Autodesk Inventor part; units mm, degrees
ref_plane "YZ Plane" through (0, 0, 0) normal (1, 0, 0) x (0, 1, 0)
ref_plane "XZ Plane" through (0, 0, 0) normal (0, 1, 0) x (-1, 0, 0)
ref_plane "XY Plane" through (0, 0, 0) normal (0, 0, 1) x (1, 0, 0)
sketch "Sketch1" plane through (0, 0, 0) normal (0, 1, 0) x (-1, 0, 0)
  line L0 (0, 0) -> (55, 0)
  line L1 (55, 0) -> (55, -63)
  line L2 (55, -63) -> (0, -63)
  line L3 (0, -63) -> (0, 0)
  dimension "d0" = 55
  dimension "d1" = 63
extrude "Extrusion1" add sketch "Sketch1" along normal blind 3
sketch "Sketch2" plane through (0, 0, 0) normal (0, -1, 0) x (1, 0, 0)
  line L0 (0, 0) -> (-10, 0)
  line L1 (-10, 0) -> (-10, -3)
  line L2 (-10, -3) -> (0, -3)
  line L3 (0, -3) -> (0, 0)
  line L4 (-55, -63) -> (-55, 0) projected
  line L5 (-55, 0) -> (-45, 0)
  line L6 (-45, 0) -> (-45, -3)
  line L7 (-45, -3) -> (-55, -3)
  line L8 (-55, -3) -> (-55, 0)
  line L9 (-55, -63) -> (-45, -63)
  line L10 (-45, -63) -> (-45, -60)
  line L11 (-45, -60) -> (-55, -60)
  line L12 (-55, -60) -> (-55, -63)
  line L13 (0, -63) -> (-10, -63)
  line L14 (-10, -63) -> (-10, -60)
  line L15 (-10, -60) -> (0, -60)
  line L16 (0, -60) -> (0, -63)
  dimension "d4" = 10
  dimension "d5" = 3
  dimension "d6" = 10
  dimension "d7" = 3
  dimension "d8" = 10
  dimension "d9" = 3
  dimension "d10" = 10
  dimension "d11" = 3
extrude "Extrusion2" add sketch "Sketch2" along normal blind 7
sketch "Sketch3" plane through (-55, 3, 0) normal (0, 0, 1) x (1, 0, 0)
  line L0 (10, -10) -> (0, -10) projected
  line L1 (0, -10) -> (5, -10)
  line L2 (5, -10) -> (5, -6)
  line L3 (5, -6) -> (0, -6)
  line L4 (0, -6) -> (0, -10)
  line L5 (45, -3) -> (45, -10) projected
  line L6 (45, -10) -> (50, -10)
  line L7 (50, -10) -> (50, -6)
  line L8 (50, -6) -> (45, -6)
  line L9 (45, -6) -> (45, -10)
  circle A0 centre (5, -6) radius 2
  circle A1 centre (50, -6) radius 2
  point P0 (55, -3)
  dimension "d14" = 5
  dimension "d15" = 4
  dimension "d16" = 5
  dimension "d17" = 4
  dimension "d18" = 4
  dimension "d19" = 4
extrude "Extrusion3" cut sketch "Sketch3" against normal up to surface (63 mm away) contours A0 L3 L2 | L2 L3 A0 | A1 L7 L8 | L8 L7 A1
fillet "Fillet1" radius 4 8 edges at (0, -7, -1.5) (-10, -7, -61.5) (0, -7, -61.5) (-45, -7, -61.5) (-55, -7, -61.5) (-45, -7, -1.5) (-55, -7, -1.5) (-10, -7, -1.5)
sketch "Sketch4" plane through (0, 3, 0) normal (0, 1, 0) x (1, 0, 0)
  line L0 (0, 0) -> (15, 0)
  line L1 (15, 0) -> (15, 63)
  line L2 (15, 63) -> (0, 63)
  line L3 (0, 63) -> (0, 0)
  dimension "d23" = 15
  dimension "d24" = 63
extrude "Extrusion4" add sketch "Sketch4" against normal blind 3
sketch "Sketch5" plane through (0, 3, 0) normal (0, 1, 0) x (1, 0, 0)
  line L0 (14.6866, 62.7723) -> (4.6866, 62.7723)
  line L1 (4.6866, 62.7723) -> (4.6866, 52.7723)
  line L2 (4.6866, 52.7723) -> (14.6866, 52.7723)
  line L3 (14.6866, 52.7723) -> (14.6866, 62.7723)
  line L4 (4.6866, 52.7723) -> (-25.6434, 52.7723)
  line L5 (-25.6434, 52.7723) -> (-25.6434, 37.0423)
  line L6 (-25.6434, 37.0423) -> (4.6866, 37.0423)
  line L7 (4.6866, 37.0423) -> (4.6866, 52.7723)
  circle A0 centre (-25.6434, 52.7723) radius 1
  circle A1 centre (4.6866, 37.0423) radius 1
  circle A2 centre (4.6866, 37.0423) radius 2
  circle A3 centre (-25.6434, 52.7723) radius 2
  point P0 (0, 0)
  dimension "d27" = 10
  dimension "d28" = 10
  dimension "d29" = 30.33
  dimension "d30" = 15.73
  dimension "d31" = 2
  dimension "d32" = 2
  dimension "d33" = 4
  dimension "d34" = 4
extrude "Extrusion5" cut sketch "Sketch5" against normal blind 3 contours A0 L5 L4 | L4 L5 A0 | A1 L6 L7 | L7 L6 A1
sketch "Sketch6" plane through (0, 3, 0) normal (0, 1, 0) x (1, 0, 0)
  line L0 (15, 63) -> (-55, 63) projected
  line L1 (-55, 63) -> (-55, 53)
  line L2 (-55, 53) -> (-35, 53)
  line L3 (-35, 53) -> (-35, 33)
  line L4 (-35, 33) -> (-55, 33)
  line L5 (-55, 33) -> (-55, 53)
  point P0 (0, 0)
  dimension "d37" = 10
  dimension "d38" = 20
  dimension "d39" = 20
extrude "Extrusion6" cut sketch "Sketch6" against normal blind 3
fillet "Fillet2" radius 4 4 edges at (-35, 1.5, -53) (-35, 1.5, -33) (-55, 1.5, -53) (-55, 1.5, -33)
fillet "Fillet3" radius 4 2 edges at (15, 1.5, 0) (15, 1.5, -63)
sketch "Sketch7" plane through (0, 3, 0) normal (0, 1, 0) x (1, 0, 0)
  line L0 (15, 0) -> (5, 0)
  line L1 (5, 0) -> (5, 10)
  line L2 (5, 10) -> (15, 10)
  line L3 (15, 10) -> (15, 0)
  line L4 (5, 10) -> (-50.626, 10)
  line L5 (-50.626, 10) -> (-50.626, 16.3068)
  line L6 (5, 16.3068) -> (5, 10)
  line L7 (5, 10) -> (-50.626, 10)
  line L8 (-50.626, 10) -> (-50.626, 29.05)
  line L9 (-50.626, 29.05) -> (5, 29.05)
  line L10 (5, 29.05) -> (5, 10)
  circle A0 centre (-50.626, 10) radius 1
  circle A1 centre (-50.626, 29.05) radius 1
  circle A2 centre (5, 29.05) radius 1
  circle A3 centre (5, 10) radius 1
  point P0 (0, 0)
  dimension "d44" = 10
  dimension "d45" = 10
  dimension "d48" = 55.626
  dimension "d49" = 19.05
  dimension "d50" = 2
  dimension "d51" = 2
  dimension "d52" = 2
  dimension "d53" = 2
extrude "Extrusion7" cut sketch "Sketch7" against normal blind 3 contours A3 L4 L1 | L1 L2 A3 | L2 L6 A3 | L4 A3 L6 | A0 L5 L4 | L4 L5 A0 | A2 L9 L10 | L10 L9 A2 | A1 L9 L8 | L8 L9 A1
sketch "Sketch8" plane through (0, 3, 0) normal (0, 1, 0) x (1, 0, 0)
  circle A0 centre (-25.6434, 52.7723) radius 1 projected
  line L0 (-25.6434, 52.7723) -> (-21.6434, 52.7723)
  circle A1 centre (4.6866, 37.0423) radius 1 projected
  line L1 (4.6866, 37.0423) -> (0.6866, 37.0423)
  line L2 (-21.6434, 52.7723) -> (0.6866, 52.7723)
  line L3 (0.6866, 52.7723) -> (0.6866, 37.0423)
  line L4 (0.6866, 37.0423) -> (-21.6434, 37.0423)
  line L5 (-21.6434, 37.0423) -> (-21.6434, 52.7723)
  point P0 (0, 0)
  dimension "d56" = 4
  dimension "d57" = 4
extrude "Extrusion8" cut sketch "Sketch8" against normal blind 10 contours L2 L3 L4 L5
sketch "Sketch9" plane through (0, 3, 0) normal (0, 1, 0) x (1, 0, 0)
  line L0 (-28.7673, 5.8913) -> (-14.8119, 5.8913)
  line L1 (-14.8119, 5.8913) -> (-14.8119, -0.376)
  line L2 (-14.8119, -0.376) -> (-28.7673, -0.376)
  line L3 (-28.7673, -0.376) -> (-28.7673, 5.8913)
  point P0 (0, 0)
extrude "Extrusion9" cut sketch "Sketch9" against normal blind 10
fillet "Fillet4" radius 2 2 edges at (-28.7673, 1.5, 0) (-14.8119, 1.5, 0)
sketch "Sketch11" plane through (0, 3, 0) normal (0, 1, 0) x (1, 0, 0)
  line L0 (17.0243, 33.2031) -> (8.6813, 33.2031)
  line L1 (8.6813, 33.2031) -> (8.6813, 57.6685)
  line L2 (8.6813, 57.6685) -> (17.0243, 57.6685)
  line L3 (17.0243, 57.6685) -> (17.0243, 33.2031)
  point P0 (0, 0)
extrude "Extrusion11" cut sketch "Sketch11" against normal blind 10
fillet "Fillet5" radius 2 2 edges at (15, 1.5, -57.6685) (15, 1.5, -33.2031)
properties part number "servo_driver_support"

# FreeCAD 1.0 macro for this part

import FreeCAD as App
import Part
import Sketcher


def edges_at(feature, points):
    """Names of the edges that pass closest to the given points."""
    edges = feature.Shape.Edges
    near = lambda p: min(range(len(edges)), key=lambda i: edges[i].distToShape(Part.Vertex(*p))[0])
    return sorted({f"Edge{near(p) + 1}" for p in points})


def add_polygon(sketch, points):
    """Adds a closed chain of lines whose ends are joined by coincident constraints."""
    first, n = sketch.GeometryCount, len(points)
    for a, b in zip(points, points[1:] + points[:1]):
        sketch.addGeometry(Part.LineSegment(App.Vector(*a, 0), App.Vector(*b, 0)), False)
    for i in range(n):
        sketch.addConstraint(Sketcher.Constraint("Coincident", first + i, 2, first + (i + 1) % n, 1))

doc = App.newDocument("Part")
body = doc.addObject("PartDesign::Body", "Body")

sketch1 = doc.addObject("Sketcher::SketchObject", "Sketch")
body.addObject(sketch1)
sketch1.AttachmentSupport = (doc.XZ_Plane, [""])
sketch1.MapMode = "FlatFace"
add_polygon(sketch1, [(-55, 0), (0, 0), (0, -63), (-55, -63)])
sketch1.addConstraint([
    Sketcher.Constraint("Horizontal", 0),
    Sketcher.Constraint("Vertical", 1),
    Sketcher.Constraint("Horizontal", 2),
    Sketcher.Constraint("Vertical", 3),
    Sketcher.Constraint("Coincident", 0, 2, -1, 1),
    Sketcher.Constraint("DistanceX", 0, 1, 0, 2, 55.0),
    Sketcher.Constraint("DistanceY", 1, 2, 1, 1, 63.0),
])
pad1 = doc.addObject("PartDesign::Pad", "Pad")
body.addObject(pad1)
pad1.Profile = sketch1
pad1.Length = 3
pad1.Reversed = True

sketch2 = doc.addObject("Sketcher::SketchObject", "Sketch001")
body.addObject(sketch2)
sketch2.AttachmentSupport = (doc.XZ_Plane, [""])
sketch2.MapMode = "FlatFace"
add_polygon(sketch2, [(0, -3), (0, 0), (-10, 0), (-10, -3)])
add_polygon(sketch2, [(-55, 0), (-55, -3), (-45, -3), (-45, 0)])
add_polygon(sketch2, [(-55, -60), (-55, -63), (-45, -63), (-45, -60)])
add_polygon(sketch2, [(-10, -63), (0, -63), (0, -60), (-10, -60)])
sketch2.addConstraint([
    Sketcher.Constraint("Vertical", 0),
    Sketcher.Constraint("Horizontal", 1),
    Sketcher.Constraint("Vertical", 2),
    Sketcher.Constraint("Horizontal", 3),
    Sketcher.Constraint("Vertical", 4),
    Sketcher.Constraint("Horizontal", 5),
    Sketcher.Constraint("Vertical", 6),
    Sketcher.Constraint("Horizontal", 7),
    Sketcher.Constraint("Vertical", 8),
    Sketcher.Constraint("Horizontal", 9),
    Sketcher.Constraint("Vertical", 10),
    Sketcher.Constraint("Horizontal", 11),
    Sketcher.Constraint("Horizontal", 12),
    Sketcher.Constraint("Vertical", 13),
    Sketcher.Constraint("Horizontal", 14),
    Sketcher.Constraint("Vertical", 15),
    Sketcher.Constraint("Coincident", 0, 2, -1, 1),
    Sketcher.Constraint("PointOnObject", 6, 2, -1),
    Sketcher.Constraint("PointOnObject", 12, 2, -2),
    Sketcher.Constraint("Horizontal", 3, 2, 4, 2),
    Sketcher.Constraint("Horizontal", 9, 2, 12, 2),
    Sketcher.Constraint("Horizontal", 11, 2, 13, 2),
    Sketcher.Constraint("Vertical", 7, 2, 8, 2),
    Sketcher.Constraint("Vertical", 6, 2, 9, 2),
    Sketcher.Constraint("Vertical", 2, 2, 14, 2),
    Sketcher.Constraint("Equal", 3, 5),
    Sketcher.Constraint("Equal", 6, 8),
    Sketcher.Constraint("DistanceX", 1, 2, 1, 1, 10.0),
    Sketcher.Constraint("DistanceY", 0, 1, 0, 2, 3.0),
    Sketcher.Constraint("DistanceX", 4, 2, -1, 1, 55.0),
    Sketcher.Constraint("DistanceY", 8, 2, -1, 1, 63.0),
])
pad2 = doc.addObject("PartDesign::Pad", "Pad001")
body.addObject(pad2)
pad2.Profile = sketch2
pad2.Length = 7

sketch3 = doc.addObject("Sketcher::SketchObject", "Sketch002")
body.addObject(sketch3)
sketch3.AttachmentSupport = (doc.XY_Plane, [""])
sketch3.MapMode = "FlatFace"
sketch3.addGeometry([
    Part.Circle(App.Vector(-50, -3, 0), App.Vector(0, 0, 1), 2),
    Part.Circle(App.Vector(-5, -3, 0), App.Vector(0, 0, 1), 2),
], False)
sketch3.addConstraint([
    Sketcher.Constraint("Equal", 0, 1),
    Sketcher.Constraint("Horizontal", 0, 3, 1, 3),
    Sketcher.Constraint("Diameter", 0, 4.0),
    Sketcher.Constraint("DistanceX", 1, 3, -1, 1, 5.0),
    Sketcher.Constraint("DistanceX", 0, 3, -1, 1, 50.0),
    Sketcher.Constraint("DistanceY", 0, 3, -1, 1, 3.0),
])
pocket1 = doc.addObject("PartDesign::Pocket", "Pocket")
body.addObject(pocket1)
pocket1.Profile = sketch3
pocket1.Length = 63
doc.recompute()

fillet = doc.addObject("PartDesign::Fillet", "Fillet")
body.addObject(fillet)
fillet.Base = (pocket1, edges_at(pocket1, [
    (0, -7, -1.5),
    (-10, -7, -61.5),
    (0, -7, -61.5),
    (-45, -7, -61.5),
    (-55, -7, -61.5),
    (-45, -7, -1.5),
    (-55, -7, -1.5),
    (-10, -7, -1.5),
]))
fillet.Radius = 4

sketch4 = doc.addObject("Sketcher::SketchObject", "Sketch003")
body.addObject(sketch4)
sketch4.AttachmentSupport = (doc.XZ_Plane, [""])
sketch4.MapMode = "FlatFace"
sketch4.AttachmentOffset = App.Placement(App.Vector(0, 0, -3), App.Rotation())
add_polygon(sketch4, [(0, -63), (0, 0), (15, 0), (15, -63)])
sketch4.addConstraint([
    Sketcher.Constraint("Vertical", 0),
    Sketcher.Constraint("Horizontal", 1),
    Sketcher.Constraint("Vertical", 2),
    Sketcher.Constraint("Horizontal", 3),
    Sketcher.Constraint("Coincident", 0, 2, -1, 1),
    Sketcher.Constraint("DistanceX", 1, 1, 1, 2, 15.0),
    Sketcher.Constraint("DistanceY", 0, 1, 0, 2, 63.0),
])
pad3 = doc.addObject("PartDesign::Pad", "Pad002")
body.addObject(pad3)
pad3.Profile = sketch4
pad3.Length = 3

sketch5 = doc.addObject("Sketcher::SketchObject", "Sketch004")
body.addObject(sketch5)
sketch5.AttachmentSupport = (doc.XZ_Plane, [""])
sketch5.MapMode = "FlatFace"
sketch5.AttachmentOffset = App.Placement(App.Vector(0, 0, -3), App.Rotation())
sketch5.addGeometry([
    Part.Circle(App.Vector(-25.6, -52.8, 0), App.Vector(0, 0, 1), 1),
    Part.Circle(App.Vector(4.7, -37, 0), App.Vector(0, 0, 1), 1),
], False)
sketch5.addConstraint([
    Sketcher.Constraint("Equal", 0, 1),
    Sketcher.Constraint("Diameter", 0, 2.0),
    Sketcher.Constraint("DistanceX", 0, 3, 1, 3, 30.33),
    Sketcher.Constraint("DistanceY", 0, 3, 1, 3, 15.73),
    Sketcher.Constraint("DistanceX", 0, 3, -1, 1, 25.6434),
    Sketcher.Constraint("DistanceY", 0, 3, -1, 1, 52.7723),
])
pocket2 = doc.addObject("PartDesign::Pocket", "Pocket001")
body.addObject(pocket2)
pocket2.Profile = sketch5
pocket2.Length = 3
pocket2.Reversed = True

sketch6 = doc.addObject("Sketcher::SketchObject", "Sketch005")
body.addObject(sketch6)
sketch6.AttachmentSupport = (doc.XZ_Plane, [""])
sketch6.MapMode = "FlatFace"
sketch6.AttachmentOffset = App.Placement(App.Vector(0, 0, -3), App.Rotation())
add_polygon(sketch6, [(-35, -53), (-55, -53), (-55, -33), (-35, -33)])
sketch6.addConstraint([
    Sketcher.Constraint("Horizontal", 0),
    Sketcher.Constraint("Vertical", 1),
    Sketcher.Constraint("Horizontal", 2),
    Sketcher.Constraint("Vertical", 3),
    Sketcher.Constraint("Equal", 2, 1),
    Sketcher.Constraint("DistanceX", 0, 2, 0, 1, 20.0),
    Sketcher.Constraint("DistanceX", 0, 2, -1, 1, 55.0),
    Sketcher.Constraint("DistanceY", 0, 2, -1, 1, 53.0),
])
pocket3 = doc.addObject("PartDesign::Pocket", "Pocket002")
body.addObject(pocket3)
pocket3.Profile = sketch6
pocket3.Length = 3
pocket3.Reversed = True
doc.recompute()

fillet2 = doc.addObject("PartDesign::Fillet", "Fillet001")
body.addObject(fillet2)
fillet2.Base = (pocket3, edges_at(pocket3, [
    (-35, 1.5, -53),
    (-35, 1.5, -33),
    (-55, 1.5, -53),
    (-55, 1.5, -33),
]))
fillet2.Radius = 4
doc.recompute()

fillet3 = doc.addObject("PartDesign::Fillet", "Fillet002")
body.addObject(fillet3)
fillet3.Base = (fillet2, edges_at(fillet2, [(15, 1.5, 0), (15, 1.5, -63)]))
fillet3.Radius = 4

sketch7 = doc.addObject("Sketcher::SketchObject", "Sketch006")
body.addObject(sketch7)
sketch7.AttachmentSupport = (doc.XZ_Plane, [""])
sketch7.MapMode = "FlatFace"
sketch7.AttachmentOffset = App.Placement(App.Vector(0, 0, -3), App.Rotation())
sketch7.addGeometry([
    Part.Circle(App.Vector(5, -10, 0), App.Vector(0, 0, 1), 1),
    Part.Circle(App.Vector(-50.6, -10, 0), App.Vector(0, 0, 1), 1),
    Part.Circle(App.Vector(5, -29.1, 0), App.Vector(0, 0, 1), 1),
    Part.Circle(App.Vector(-50.6, -29.1, 0), App.Vector(0, 0, 1), 1),
], False)
sketch7.addConstraint([
    Sketcher.Constraint("Equal", 0, 1),
    Sketcher.Constraint("Equal", 1, 2),
    Sketcher.Constraint("Equal", 2, 3),
    Sketcher.Constraint("Horizontal", 0, 3, 1, 3),
    Sketcher.Constraint("Horizontal", 2, 3, 3, 3),
    Sketcher.Constraint("Vertical", 0, 3, 2, 3),
    Sketcher.Constraint("Vertical", 1, 3, 3, 3),
    Sketcher.Constraint("Diameter", 0, 2.0),
    Sketcher.Constraint("DistanceY", 0, 3, -1, 1, 10.0),
    Sketcher.Constraint("DistanceY", 2, 3, 0, 3, 19.05),
    Sketcher.Constraint("DistanceX", -1, 1, 0, 3, 5.0),
    Sketcher.Constraint("DistanceX", 1, 3, 0, 3, 55.626),
])
pocket4 = doc.addObject("PartDesign::Pocket", "Pocket003")
body.addObject(pocket4)
pocket4.Profile = sketch7
pocket4.Length = 3
pocket4.Reversed = True

sketch8 = doc.addObject("Sketcher::SketchObject", "Sketch007")
body.addObject(sketch8)
sketch8.AttachmentSupport = (doc.XZ_Plane, [""])
sketch8.MapMode = "FlatFace"
sketch8.AttachmentOffset = App.Placement(App.Vector(0, 0, -3), App.Rotation())
add_polygon(sketch8, [(1, -53), (-22, -53), (-22, -37), (1, -37)])
sketch8.addConstraint([
    Sketcher.Constraint("Horizontal", 0),
    Sketcher.Constraint("Vertical", 1),
    Sketcher.Constraint("Horizontal", 2),
    Sketcher.Constraint("Vertical", 3),
    Sketcher.Constraint("DistanceX", 0, 2, 0, 1, 22.33),
    Sketcher.Constraint("DistanceY", 1, 1, 1, 2, 15.73),
    Sketcher.Constraint("DistanceX", 0, 2, -1, 1, 21.6434),
    Sketcher.Constraint("DistanceY", 0, 2, -1, 1, 52.7723),
])
pocket5 = doc.addObject("PartDesign::Pocket", "Pocket004")
body.addObject(pocket5)
pocket5.Profile = sketch8
pocket5.Length = 10
pocket5.Reversed = True

sketch9 = doc.addObject("Sketcher::SketchObject", "Sketch008")
body.addObject(sketch9)
sketch9.AttachmentSupport = (doc.XZ_Plane, [""])
sketch9.MapMode = "FlatFace"
sketch9.AttachmentOffset = App.Placement(App.Vector(0, 0, -3), App.Rotation())
add_polygon(sketch9, [(-15, -6), (-29, -6), (-29, 0), (-15, 0)])
sketch9.addConstraint([
    Sketcher.Constraint("Horizontal", 0),
    Sketcher.Constraint("Vertical", 1),
    Sketcher.Constraint("Horizontal", 2),
    Sketcher.Constraint("Vertical", 3),
    Sketcher.Constraint("DistanceX", 0, 2, 0, 1, 13.9554),
    Sketcher.Constraint("DistanceY", 1, 1, 1, 2, 6.2673),
    Sketcher.Constraint("DistanceY", -1, 1, 1, 2, 0.376),
    Sketcher.Constraint("DistanceX", 2, 2, -1, 1, 14.812),
])
pocket6 = doc.addObject("PartDesign::Pocket", "Pocket005")
body.addObject(pocket6)
pocket6.Profile = sketch9
pocket6.Length = 10
pocket6.Reversed = True
doc.recompute()

fillet4 = doc.addObject("PartDesign::Fillet", "Fillet003")
body.addObject(fillet4)
fillet4.Base = (pocket6, edges_at(pocket6, [(-28.767, 1.5, 0), (-14.812, 1.5, 0)]))
fillet4.Radius = 2

sketch10 = doc.addObject("Sketcher::SketchObject", "Sketch009")
body.addObject(sketch10)
sketch10.AttachmentSupport = (doc.XZ_Plane, [""])
sketch10.MapMode = "FlatFace"
sketch10.AttachmentOffset = App.Placement(App.Vector(0, 0, -3), App.Rotation())
add_polygon(sketch10, [(9, -33), (17, -33), (17, -58), (9, -58)])
sketch10.addConstraint([
    Sketcher.Constraint("Horizontal", 0),
    Sketcher.Constraint("Vertical", 1),
    Sketcher.Constraint("Horizontal", 2),
    Sketcher.Constraint("Vertical", 3),
    Sketcher.Constraint("DistanceX", 0, 1, 0, 2, 8.343),
    Sketcher.Constraint("DistanceY", 1, 2, 1, 1, 24.4654),
    Sketcher.Constraint("DistanceY", 0, 2, -1, 1, 33.203),
    Sketcher.Constraint("DistanceX", -1, 1, 0, 2, 17.0243),
])
pocket7 = doc.addObject("PartDesign::Pocket", "Pocket006")
body.addObject(pocket7)
pocket7.Profile = sketch10
pocket7.Length = 10
pocket7.Reversed = True
doc.recompute()

fillet5 = doc.addObject("PartDesign::Fillet", "Fillet004")
body.addObject(fillet5)
fillet5.Base = (pocket7, edges_at(pocket7, [(15, 1.5, -57.669), (15, 1.5, -33.203)]))
fillet5.Radius = 2

doc.recompute()
